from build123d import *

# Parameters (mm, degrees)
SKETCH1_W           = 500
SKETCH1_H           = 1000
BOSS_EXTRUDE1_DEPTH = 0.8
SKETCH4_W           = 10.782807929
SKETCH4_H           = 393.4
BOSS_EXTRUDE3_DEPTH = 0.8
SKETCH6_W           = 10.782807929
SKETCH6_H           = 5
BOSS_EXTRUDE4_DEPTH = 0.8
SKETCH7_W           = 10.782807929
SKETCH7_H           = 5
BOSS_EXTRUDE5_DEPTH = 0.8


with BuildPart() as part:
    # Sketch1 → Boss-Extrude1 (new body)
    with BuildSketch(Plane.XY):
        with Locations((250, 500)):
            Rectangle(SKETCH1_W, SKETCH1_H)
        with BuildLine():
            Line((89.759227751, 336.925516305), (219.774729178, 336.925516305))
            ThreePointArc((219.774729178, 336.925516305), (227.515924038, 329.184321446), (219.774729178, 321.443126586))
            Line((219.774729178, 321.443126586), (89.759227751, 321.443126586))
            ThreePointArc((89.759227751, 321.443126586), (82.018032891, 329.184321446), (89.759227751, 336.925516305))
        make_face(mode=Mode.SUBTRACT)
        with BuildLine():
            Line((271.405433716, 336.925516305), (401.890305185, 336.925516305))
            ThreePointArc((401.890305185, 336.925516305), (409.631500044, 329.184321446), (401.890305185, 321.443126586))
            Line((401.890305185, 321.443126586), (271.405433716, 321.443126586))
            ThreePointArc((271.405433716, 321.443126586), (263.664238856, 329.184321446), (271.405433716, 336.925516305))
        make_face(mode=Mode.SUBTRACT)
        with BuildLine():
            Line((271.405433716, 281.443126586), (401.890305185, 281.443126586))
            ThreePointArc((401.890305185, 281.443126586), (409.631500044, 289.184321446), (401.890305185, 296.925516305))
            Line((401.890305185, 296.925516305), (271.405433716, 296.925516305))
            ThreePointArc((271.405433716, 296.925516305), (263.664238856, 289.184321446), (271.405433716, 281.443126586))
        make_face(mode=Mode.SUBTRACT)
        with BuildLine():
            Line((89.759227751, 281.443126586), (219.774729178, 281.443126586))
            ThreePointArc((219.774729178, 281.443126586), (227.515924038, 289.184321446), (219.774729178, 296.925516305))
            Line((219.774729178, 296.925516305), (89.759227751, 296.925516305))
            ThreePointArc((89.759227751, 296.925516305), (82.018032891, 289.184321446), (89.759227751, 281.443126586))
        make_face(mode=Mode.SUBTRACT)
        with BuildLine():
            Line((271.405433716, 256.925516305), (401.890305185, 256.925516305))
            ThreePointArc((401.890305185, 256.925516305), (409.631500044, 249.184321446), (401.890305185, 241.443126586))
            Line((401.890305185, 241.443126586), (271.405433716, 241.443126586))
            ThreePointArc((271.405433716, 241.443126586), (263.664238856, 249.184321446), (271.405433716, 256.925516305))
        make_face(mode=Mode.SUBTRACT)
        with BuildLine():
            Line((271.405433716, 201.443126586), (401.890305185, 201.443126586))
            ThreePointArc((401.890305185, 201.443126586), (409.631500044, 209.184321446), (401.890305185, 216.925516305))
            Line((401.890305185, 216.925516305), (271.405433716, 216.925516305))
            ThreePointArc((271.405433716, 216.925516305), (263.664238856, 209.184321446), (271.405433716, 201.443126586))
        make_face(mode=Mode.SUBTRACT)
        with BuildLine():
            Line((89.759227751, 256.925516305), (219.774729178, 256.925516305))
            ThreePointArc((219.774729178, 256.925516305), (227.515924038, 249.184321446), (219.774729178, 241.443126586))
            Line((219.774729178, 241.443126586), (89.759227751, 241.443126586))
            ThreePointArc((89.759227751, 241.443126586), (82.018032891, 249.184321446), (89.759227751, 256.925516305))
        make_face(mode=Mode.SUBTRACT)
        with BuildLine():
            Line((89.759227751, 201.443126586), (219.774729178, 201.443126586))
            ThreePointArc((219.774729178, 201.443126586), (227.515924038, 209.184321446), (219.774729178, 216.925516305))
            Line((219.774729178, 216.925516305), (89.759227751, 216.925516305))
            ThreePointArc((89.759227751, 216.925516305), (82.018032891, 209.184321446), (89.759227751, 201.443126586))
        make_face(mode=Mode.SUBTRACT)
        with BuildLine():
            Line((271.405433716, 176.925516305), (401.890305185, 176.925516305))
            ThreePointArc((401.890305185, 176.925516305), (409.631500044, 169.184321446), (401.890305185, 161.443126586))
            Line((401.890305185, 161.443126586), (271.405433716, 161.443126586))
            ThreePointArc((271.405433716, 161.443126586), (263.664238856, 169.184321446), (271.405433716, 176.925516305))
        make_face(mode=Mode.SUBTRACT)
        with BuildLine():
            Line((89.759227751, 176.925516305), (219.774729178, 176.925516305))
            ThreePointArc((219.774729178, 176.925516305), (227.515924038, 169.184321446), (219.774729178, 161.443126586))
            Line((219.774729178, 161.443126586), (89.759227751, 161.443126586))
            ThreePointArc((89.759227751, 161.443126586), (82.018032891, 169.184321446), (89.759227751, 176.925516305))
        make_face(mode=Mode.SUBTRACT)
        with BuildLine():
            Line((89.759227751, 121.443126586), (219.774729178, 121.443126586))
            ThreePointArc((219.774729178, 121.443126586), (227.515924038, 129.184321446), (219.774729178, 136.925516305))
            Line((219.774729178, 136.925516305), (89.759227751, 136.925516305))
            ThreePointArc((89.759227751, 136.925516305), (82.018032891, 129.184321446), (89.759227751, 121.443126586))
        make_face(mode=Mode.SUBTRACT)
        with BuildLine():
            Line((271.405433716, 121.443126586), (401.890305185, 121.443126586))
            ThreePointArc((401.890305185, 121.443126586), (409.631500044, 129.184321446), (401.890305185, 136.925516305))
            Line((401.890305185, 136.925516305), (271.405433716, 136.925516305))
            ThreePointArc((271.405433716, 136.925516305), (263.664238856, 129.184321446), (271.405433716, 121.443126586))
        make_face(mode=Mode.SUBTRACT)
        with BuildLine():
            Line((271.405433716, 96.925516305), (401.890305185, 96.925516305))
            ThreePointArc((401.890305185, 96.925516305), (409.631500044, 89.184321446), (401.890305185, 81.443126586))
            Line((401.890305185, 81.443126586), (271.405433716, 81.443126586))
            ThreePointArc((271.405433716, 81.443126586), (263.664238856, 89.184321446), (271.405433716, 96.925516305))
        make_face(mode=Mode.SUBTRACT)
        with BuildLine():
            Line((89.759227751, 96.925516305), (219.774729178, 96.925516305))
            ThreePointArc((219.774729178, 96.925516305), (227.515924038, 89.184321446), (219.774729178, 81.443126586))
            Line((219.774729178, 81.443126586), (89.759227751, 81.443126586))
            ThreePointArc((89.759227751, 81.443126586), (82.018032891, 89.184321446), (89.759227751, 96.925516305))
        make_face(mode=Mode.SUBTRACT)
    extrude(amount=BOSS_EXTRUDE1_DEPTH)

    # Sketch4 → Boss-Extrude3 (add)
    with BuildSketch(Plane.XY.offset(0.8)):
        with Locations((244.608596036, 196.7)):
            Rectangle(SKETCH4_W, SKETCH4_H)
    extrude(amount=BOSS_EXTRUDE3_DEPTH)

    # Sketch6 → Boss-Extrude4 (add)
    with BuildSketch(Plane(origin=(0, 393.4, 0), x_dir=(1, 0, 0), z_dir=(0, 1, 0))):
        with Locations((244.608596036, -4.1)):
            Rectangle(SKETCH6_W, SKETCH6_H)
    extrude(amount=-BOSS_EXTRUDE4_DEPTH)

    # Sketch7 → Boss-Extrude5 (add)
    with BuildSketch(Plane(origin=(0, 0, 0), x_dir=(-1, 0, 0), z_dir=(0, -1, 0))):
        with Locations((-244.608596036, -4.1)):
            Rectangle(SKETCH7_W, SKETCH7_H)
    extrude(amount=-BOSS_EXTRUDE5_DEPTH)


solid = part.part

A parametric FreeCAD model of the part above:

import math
import FreeCAD as App
import Part
import Sketcher
from FreeCAD import Vector
Q = App.Units.Quantity


def add_polygon(sketch, points):
    """Adds a closed chain of lines whose ends are joined by coincident constraints."""
    first, n = sketch.GeometryCount, len(points)
    for a, b in zip(points, points[1:] + points[:1]):
        sketch.addGeometry(Part.LineSegment(App.Vector(*a, 0), App.Vector(*b, 0)), False)
    for i in range(n):
        sketch.addConstraint(Sketcher.Constraint("Coincident", first + i, 2, first + (i + 1) % n, 1))

doc = App.newDocument("Part")
body = doc.addObject("PartDesign::Body", "Body")

sketch1 = body.newObject("Sketcher::SketchObject", "Sketch")
sketch1.AttachmentSupport = (doc.getObject("XY_Plane"), [""])
sketch1.MapMode = "FlatFace"
add_polygon(sketch1, [(0, 1000), (0, 0), (500, 0), (500, 1000)])
sketch1.addGeometry(Part.ArcOfCircle(Part.Circle(Vector(90, 89, 0), Vector(0, 0, 1), 8), math.radians(90), math.radians(270)), False)
sketch1.addGeometry(Part.LineSegment(Vector(90, 97, 0), Vector(220, 97, 0)), False)
sketch1.addGeometry(Part.ArcOfCircle(Part.Circle(Vector(220, 89, 0), Vector(0, 0, 1), 8), math.radians(-90), math.radians(90)), False)
sketch1.addGeometry(Part.LineSegment(Vector(220, 81, 0), Vector(90, 81, 0)), False)
sketch1.addGeometry(Part.LineSegment(Vector(220, 121, 0), Vector(90, 121, 0)), False)
sketch1.addGeometry(Part.ArcOfCircle(Part.Circle(Vector(90, 129, 0), Vector(0, 0, 1), 8), math.radians(90), math.radians(270)), False)
sketch1.addGeometry(Part.LineSegment(Vector(90, 137, 0), Vector(220, 137, 0)), False)
sketch1.addGeometry(Part.ArcOfCircle(Part.Circle(Vector(220, 129, 0), Vector(0, 0, 1), 8), math.radians(-90), math.radians(90)), False)
sketch1.addGeometry(Part.ArcOfCircle(Part.Circle(Vector(90, 169, 0), Vector(0, 0, 1), 8), math.radians(90), math.radians(270)), False)
sketch1.addGeometry(Part.LineSegment(Vector(90, 177, 0), Vector(220, 177, 0)), False)
sketch1.addGeometry(Part.ArcOfCircle(Part.Circle(Vector(220, 169, 0), Vector(0, 0, 1), 8), math.radians(-90), math.radians(90)), False)
sketch1.addGeometry(Part.LineSegment(Vector(220, 161, 0), Vector(90, 161, 0)), False)
sketch1.addGeometry(Part.ArcOfCircle(Part.Circle(Vector(271, 89, 0), Vector(0, 0, 1), 8), math.radians(90), math.radians(270)), False)
sketch1.addGeometry(Part.LineSegment(Vector(271, 97, 0), Vector(402, 97, 0)), False)
sketch1.addGeometry(Part.ArcOfCircle(Part.Circle(Vector(402, 89, 0), Vector(0, 0, 1), 8), math.radians(-90), math.radians(90)), False)
sketch1.addGeometry(Part.LineSegment(Vector(402, 81, 0), Vector(271, 81, 0)), False)
sketch1.addGeometry(Part.LineSegment(Vector(402, 121, 0), Vector(271, 121, 0)), False)
sketch1.addGeometry(Part.ArcOfCircle(Part.Circle(Vector(271, 129, 0), Vector(0, 0, 1), 8), math.radians(90), math.radians(270)), False)
sketch1.addGeometry(Part.LineSegment(Vector(271, 137, 0), Vector(402, 137, 0)), False)
sketch1.addGeometry(Part.ArcOfCircle(Part.Circle(Vector(402, 129, 0), Vector(0, 0, 1), 8), math.radians(-90), math.radians(90)), False)
sketch1.addGeometry(Part.ArcOfCircle(Part.Circle(Vector(271, 169, 0), Vector(0, 0, 1), 8), math.radians(90), math.radians(270)), False)
sketch1.addGeometry(Part.LineSegment(Vector(271, 177, 0), Vector(402, 177, 0)), False)
sketch1.addGeometry(Part.ArcOfCircle(Part.Circle(Vector(402, 169, 0), Vector(0, 0, 1), 8), math.radians(-90), math.radians(90)), False)
sketch1.addGeometry(Part.LineSegment(Vector(402, 161, 0), Vector(271, 161, 0)), False)
sketch1.addGeometry(Part.LineSegment(Vector(220, 201, 0), Vector(90, 201, 0)), False)
sketch1.addGeometry(Part.ArcOfCircle(Part.Circle(Vector(90, 209, 0), Vector(0, 0, 1), 8), math.radians(90), math.radians(270)), False)
sketch1.addGeometry(Part.LineSegment(Vector(90, 217, 0), Vector(220, 217, 0)), False)
sketch1.addGeometry(Part.ArcOfCircle(Part.Circle(Vector(220, 209, 0), Vector(0, 0, 1), 8), math.radians(-90), math.radians(90)), False)
sketch1.addGeometry(Part.ArcOfCircle(Part.Circle(Vector(90, 249, 0), Vector(0, 0, 1), 8), math.radians(90), math.radians(270)), False)
sketch1.addGeometry(Part.LineSegment(Vector(90, 257, 0), Vector(220, 257, 0)), False)
sketch1.addGeometry(Part.ArcOfCircle(Part.Circle(Vector(220, 249, 0), Vector(0, 0, 1), 8), math.radians(-90), math.radians(90)), False)
sketch1.addGeometry(Part.LineSegment(Vector(220, 241, 0), Vector(90, 241, 0)), False)
sketch1.addGeometry(Part.LineSegment(Vector(220, 281, 0), Vector(90, 281, 0)), False)
sketch1.addGeometry(Part.ArcOfCircle(Part.Circle(Vector(90, 289, 0), Vector(0, 0, 1), 8), math.radians(90), math.radians(270)), False)
sketch1.addGeometry(Part.LineSegment(Vector(90, 297, 0), Vector(220, 297, 0)), False)
sketch1.addGeometry(Part.ArcOfCircle(Part.Circle(Vector(220, 289, 0), Vector(0, 0, 1), 8), math.radians(-90), math.radians(90)), False)
sketch1.addGeometry(Part.ArcOfCircle(Part.Circle(Vector(90, 329, 0), Vector(0, 0, 1), 8), math.radians(90), math.radians(270)), False)
sketch1.addGeometry(Part.LineSegment(Vector(90, 337, 0), Vector(220, 337, 0)), False)
sketch1.addGeometry(Part.ArcOfCircle(Part.Circle(Vector(220, 329, 0), Vector(0, 0, 1), 8), math.radians(-90), math.radians(90)), False)
sketch1.addGeometry(Part.LineSegment(Vector(220, 321, 0), Vector(90, 321, 0)), False)
sketch1.addGeometry(Part.LineSegment(Vector(402, 201, 0), Vector(271, 201, 0)), False)
sketch1.addGeometry(Part.ArcOfCircle(Part.Circle(Vector(271, 209, 0), Vector(0, 0, 1), 8), math.radians(90), math.radians(270)), False)
sketch1.addGeometry(Part.LineSegment(Vector(271, 217, 0), Vector(402, 217, 0)), False)
sketch1.addGeometry(Part.ArcOfCircle(Part.Circle(Vector(402, 209, 0), Vector(0, 0, 1), 8), math.radians(-90), math.radians(90)), False)
sketch1.addGeometry(Part.ArcOfCircle(Part.Circle(Vector(271, 249, 0), Vector(0, 0, 1), 8), math.radians(90), math.radians(270)), False)
sketch1.addGeometry(Part.LineSegment(Vector(271, 257, 0), Vector(402, 257, 0)), False)
sketch1.addGeometry(Part.ArcOfCircle(Part.Circle(Vector(402, 249, 0), Vector(0, 0, 1), 8), math.radians(-90), math.radians(90)), False)
sketch1.addGeometry(Part.LineSegment(Vector(402, 241, 0), Vector(271, 241, 0)), False)
sketch1.addGeometry(Part.LineSegment(Vector(402, 281, 0), Vector(271, 281, 0)), False)
sketch1.addGeometry(Part.ArcOfCircle(Part.Circle(Vector(271, 289, 0), Vector(0, 0, 1), 8), math.radians(90), math.radians(270)), False)
sketch1.addGeometry(Part.LineSegment(Vector(271, 297, 0), Vector(402, 297, 0)), False)
sketch1.addGeometry(Part.ArcOfCircle(Part.Circle(Vector(402, 289, 0), Vector(0, 0, 1), 8), math.radians(-90), math.radians(90)), False)
sketch1.addGeometry(Part.ArcOfCircle(Part.Circle(Vector(271, 329, 0), Vector(0, 0, 1), 8), math.radians(90), math.radians(270)), False)
sketch1.addGeometry(Part.LineSegment(Vector(271, 337, 0), Vector(402, 337, 0)), False)
sketch1.addGeometry(Part.ArcOfCircle(Part.Circle(Vector(402, 329, 0), Vector(0, 0, 1), 8), math.radians(-90), math.radians(90)), False)
sketch1.addGeometry(Part.LineSegment(Vector(402, 321, 0), Vector(271, 321, 0)), False)
sketch1.addConstraint(Sketcher.Constraint("Tangent", 4, 1, 5, 1))
sketch1.addConstraint(Sketcher.Constraint("Tangent", 5, 2, 6, 2))
sketch1.addConstraint(Sketcher.Constraint("Tangent", 6, 1, 7, 1))
sketch1.addConstraint(Sketcher.Constraint("Tangent", 7, 2, 4, 2))
sketch1.addConstraint(Sketcher.Constraint("Tangent", 8, 2, 9, 2))
sketch1.addConstraint(Sketcher.Constraint("Tangent", 9, 1, 10, 1))
sketch1.addConstraint(Sketcher.Constraint("Tangent", 10, 2, 11, 2))
sketch1.addConstraint(Sketcher.Constraint("Tangent", 11, 1, 8, 1))
sketch1.addConstraint(Sketcher.Constraint("Tangent", 12, 1, 13, 1))
sketch1.addConstraint(Sketcher.Constraint("Tangent", 13, 2, 14, 2))
sketch1.addConstraint(Sketcher.Constraint("Tangent", 14, 1, 15, 1))
sketch1.addConstraint(Sketcher.Constraint("Tangent", 15, 2, 12, 2))
sketch1.addConstraint(Sketcher.Constraint("Tangent", 16, 1, 17, 1))
sketch1.addConstraint(Sketcher.Constraint("Tangent", 17, 2, 18, 2))
sketch1.addConstraint(Sketcher.Constraint("Tangent", 18, 1, 19, 1))
sketch1.addConstraint(Sketcher.Constraint("Tangent", 19, 2, 16, 2))
sketch1.addConstraint(Sketcher.Constraint("Tangent", 20, 2, 21, 2))
sketch1.addConstraint(Sketcher.Constraint("Tangent", 21, 1, 22, 1))
sketch1.addConstraint(Sketcher.Constraint("Tangent", 22, 2, 23, 2))
sketch1.addConstraint(Sketcher.Constraint("Tangent", 23, 1, 20, 1))
sketch1.addConstraint(Sketcher.Constraint("Tangent", 24, 1, 25, 1))
sketch1.addConstraint(Sketcher.Constraint("Tangent", 25, 2, 26, 2))
sketch1.addConstraint(Sketcher.Constraint("Tangent", 26, 1, 27, 1))
sketch1.addConstraint(Sketcher.Constraint("Tangent", 27, 2, 24, 2))
sketch1.addConstraint(Sketcher.Constraint("Tangent", 28, 2, 29, 2))
sketch1.addConstraint(Sketcher.Constraint("Tangent", 29, 1, 30, 1))
sketch1.addConstraint(Sketcher.Constraint("Tangent", 30, 2, 31, 2))
sketch1.addConstraint(Sketcher.Constraint("Tangent", 31, 1, 28, 1))
sketch1.addConstraint(Sketcher.Constraint("Tangent", 32, 1, 33, 1))
sketch1.addConstraint(Sketcher.Constraint("Tangent", 33, 2, 34, 2))
sketch1.addConstraint(Sketcher.Constraint("Tangent", 34, 1, 35, 1))
sketch1.addConstraint(Sketcher.Constraint("Tangent", 35, 2, 32, 2))
sketch1.addConstraint(Sketcher.Constraint("Tangent", 36, 2, 37, 2))
sketch1.addConstraint(Sketcher.Constraint("Tangent", 37, 1, 38, 1))
sketch1.addConstraint(Sketcher.Constraint("Tangent", 38, 2, 39, 2))
sketch1.addConstraint(Sketcher.Constraint("Tangent", 39, 1, 36, 1))
sketch1.addConstraint(Sketcher.Constraint("Tangent", 40, 1, 41, 1))
sketch1.addConstraint(Sketcher.Constraint("Tangent", 41, 2, 42, 2))
sketch1.addConstraint(Sketcher.Constraint("Tangent", 42, 1, 43, 1))
sketch1.addConstraint(Sketcher.Constraint("Tangent", 43, 2, 40, 2))
sketch1.addConstraint(Sketcher.Constraint("Tangent", 44, 2, 45, 2))
sketch1.addConstraint(Sketcher.Constraint("Tangent", 45, 1, 46, 1))
sketch1.addConstraint(Sketcher.Constraint("Tangent", 46, 2, 47, 2))
sketch1.addConstraint(Sketcher.Constraint("Tangent", 47, 1, 44, 1))
sketch1.addConstraint(Sketcher.Constraint("Tangent", 48, 1, 49, 1))
sketch1.addConstraint(Sketcher.Constraint("Tangent", 49, 2, 50, 2))
sketch1.addConstraint(Sketcher.Constraint("Tangent", 50, 1, 51, 1))
sketch1.addConstraint(Sketcher.Constraint("Tangent", 51, 2, 48, 2))
sketch1.addConstraint(Sketcher.Constraint("Tangent", 52, 2, 53, 2))
sketch1.addConstraint(Sketcher.Constraint("Tangent", 53, 1, 54, 1))
sketch1.addConstraint(Sketcher.Constraint("Tangent", 54, 2, 55, 2))
sketch1.addConstraint(Sketcher.Constraint("Tangent", 55, 1, 52, 1))
sketch1.addConstraint(Sketcher.Constraint("Tangent", 56, 1, 57, 1))
sketch1.addConstraint(Sketcher.Constraint("Tangent", 57, 2, 58, 2))
sketch1.addConstraint(Sketcher.Constraint("Tangent", 58, 1, 59, 1))
sketch1.addConstraint(Sketcher.Constraint("Tangent", 59, 2, 56, 2))
sketch1.addConstraint(Sketcher.Constraint("Vertical", 0))
sketch1.addConstraint(Sketcher.Constraint("Horizontal", 1))
sketch1.addConstraint(Sketcher.Constraint("Vertical", 2))
sketch1.addConstraint(Sketcher.Constraint("Horizontal", 3))
sketch1.addConstraint(Sketcher.Constraint("Horizontal", 5))
sketch1.addConstraint(Sketcher.Constraint("Horizontal", 7))
sketch1.addConstraint(Sketcher.Constraint("Horizontal", 8))
sketch1.addConstraint(Sketcher.Constraint("Horizontal", 10))
sketch1.addConstraint(Sketcher.Constraint("Horizontal", 13))
sketch1.addConstraint(Sketcher.Constraint("Horizontal", 15))
sketch1.addConstraint(Sketcher.Constraint("Horizontal", 17))
sketch1.addConstraint(Sketcher.Constraint("Horizontal", 19))
sketch1.addConstraint(Sketcher.Constraint("Horizontal", 20))
sketch1.addConstraint(Sketcher.Constraint("Horizontal", 22))
sketch1.addConstraint(Sketcher.Constraint("Horizontal", 25))
sketch1.addConstraint(Sketcher.Constraint("Horizontal", 27))
sketch1.addConstraint(Sketcher.Constraint("Horizontal", 28))
sketch1.addConstraint(Sketcher.Constraint("Horizontal", 30))
sketch1.addConstraint(Sketcher.Constraint("Horizontal", 33))
sketch1.addConstraint(Sketcher.Constraint("Horizontal", 35))
sketch1.addConstraint(Sketcher.Constraint("Horizontal", 36))
sketch1.addConstraint(Sketcher.Constraint("Horizontal", 38))
sketch1.addConstraint(Sketcher.Constraint("Horizontal", 41))
sketch1.addConstraint(Sketcher.Constraint("Horizontal", 43))
sketch1.addConstraint(Sketcher.Constraint("Horizontal", 44))
sketch1.addConstraint(Sketcher.Constraint("Horizontal", 46))
sketch1.addConstraint(Sketcher.Constraint("Horizontal", 49))
sketch1.addConstraint(Sketcher.Constraint("Horizontal", 51))
sketch1.addConstraint(Sketcher.Constraint("Horizontal", 52))
sketch1.addConstraint(Sketcher.Constraint("Horizontal", 54))
sketch1.addConstraint(Sketcher.Constraint("Horizontal", 57))
sketch1.addConstraint(Sketcher.Constraint("Horizontal", 59))
sketch1.addConstraint(Sketcher.Constraint("Coincident", 0, 2, -1, 1))
sketch1.addConstraint(Sketcher.Constraint("Equal", 6, 9))
sketch1.addConstraint(Sketcher.Constraint("Equal", 11, 12))
sketch1.addConstraint(Sketcher.Constraint("Equal", 14, 16))
sketch1.addConstraint(Sketcher.Constraint("Equal", 18, 21))
sketch1.addConstraint(Sketcher.Constraint("Equal", 23, 24))
sketch1.addConstraint(Sketcher.Constraint("Equal", 26, 29))
sketch1.addConstraint(Sketcher.Constraint("Equal", 31, 32))
sketch1.addConstraint(Sketcher.Constraint("Equal", 34, 37))
sketch1.addConstraint(Sketcher.Constraint("Equal", 39, 40))
sketch1.addConstraint(Sketcher.Constraint("Equal", 42, 45))
sketch1.addConstraint(Sketcher.Constraint("Equal", 47, 48))
sketch1.addConstraint(Sketcher.Constraint("Equal", 50, 53))
sketch1.addConstraint(Sketcher.Constraint("Equal", 55, 56))
sketch1.addConstraint(Sketcher.Constraint("Horizontal", 6, 3, 16, 3))
sketch1.addConstraint(Sketcher.Constraint("Horizontal", 11, 3, 21, 3))
sketch1.addConstraint(Sketcher.Constraint("Horizontal", 14, 3, 24, 3))
sketch1.addConstraint(Sketcher.Constraint("Horizontal", 31, 3, 45, 3))
sketch1.addConstraint(Sketcher.Constraint("Horizontal", 34, 3, 48, 3))
sketch1.addConstraint(Sketcher.Constraint("Horizontal", 39, 3, 53, 3))
sketch1.addConstraint(Sketcher.Constraint("Horizontal", 42, 3, 56, 3))
sketch1.addConstraint(Sketcher.Constraint("Vertical", 4, 3, 9, 3))
sketch1.addConstraint(Sketcher.Constraint("Vertical", 6, 3, 11, 3))
sketch1.addConstraint(Sketcher.Constraint("Vertical", 9, 3, 12, 3))
sketch1.addConstraint(Sketcher.Constraint("Vertical", 11, 3, 14, 3))
sketch1.addConstraint(Sketcher.Constraint("Vertical", 16, 3, 21, 3))
sketch1.addConstraint(Sketcher.Constraint("Vertical", 18, 3, 23, 3))
sketch1.addConstraint(Sketcher.Constraint("Vertical", 21, 3, 24, 3))
sketch1.addConstraint(Sketcher.Constraint("Vertical", 23, 3, 26, 3))
sketch1.addConstraint(Sketcher.Constraint("Vertical", 12, 3, 29, 3))
sketch1.addConstraint(Sketcher.Constraint("Vertical", 14, 3, 31, 3))
sketch1.addConstraint(Sketcher.Constraint("Vertical", 29, 3, 32, 3))
sketch1.addConstraint(Sketcher.Constraint("Vertical", 31, 3, 34, 3))
sketch1.addConstraint(Sketcher.Constraint("Vertical", 32, 3, 37, 3))
sketch1.addConstraint(Sketcher.Constraint("Vertical", 34, 3, 39, 3))
sketch1.addConstraint(Sketcher.Constraint("Vertical", 37, 3, 40, 3))
sketch1.addConstraint(Sketcher.Constraint("Vertical", 39, 3, 42, 3))
sketch1.addConstraint(Sketcher.Constraint("Vertical", 24, 3, 45, 3))
sketch1.addConstraint(Sketcher.Constraint("Vertical", 26, 3, 47, 3))
sketch1.addConstraint(Sketcher.Constraint("Vertical", 45, 3, 48, 3))
sketch1.addConstraint(Sketcher.Constraint("Vertical", 47, 3, 50, 3))
sketch1.addConstraint(Sketcher.Constraint("Vertical", 48, 3, 53, 3))
sketch1.addConstraint(Sketcher.Constraint("Vertical", 50, 3, 55, 3))
sketch1.addConstraint(Sketcher.Constraint("Vertical", 53, 3, 56, 3))
sketch1.addConstraint(Sketcher.Constraint("Vertical", 55, 3, 58, 3))
sketch1.addConstraint(Sketcher.Constraint("DistanceX", 1, 1, 1, 2, Q("500 mm")))
sketch1.addConstraint(Sketcher.Constraint("DistanceY", 0, 2, 0, 1, Q("1000 mm")))
sketch1.addConstraint(Sketcher.Constraint("DistanceX", 5, 1, 5, 2, Q("130.015501 mm")))
sketch1.addConstraint(Sketcher.Constraint("Radius", 4, Q("7.741195 mm")))
sketch1.addConstraint(Sketcher.Constraint("DistanceX", 17, 1, 17, 2, Q("130.484871 mm")))
sketch1.addConstraint(Sketcher.Constraint("DistanceY", -1, 1, 4, 3, Q("89.184321 mm")))
sketch1.addConstraint(Sketcher.Constraint("DistanceX", -1, 1, 6, 3, Q("219.774729 mm")))
sketch1.addConstraint(Sketcher.Constraint("DistanceY", -1, 1, 9, 3, Q("129.184321 mm")))
sketch1.addConstraint(Sketcher.Constraint("DistanceY", -1, 1, 12, 3, Q("169.184321 mm")))
sketch1.addConstraint(Sketcher.Constraint("DistanceY", -1, 1, 29, 3, Q("209.184321 mm")))
sketch1.addConstraint(Sketcher.Constraint("DistanceY", -1, 1, 32, 3, Q("249.184321 mm")))
sketch1.addConstraint(Sketcher.Constraint("DistanceY", -1, 1, 37, 3, Q("289.184321 mm")))
sketch1.addConstraint(Sketcher.Constraint("DistanceY", -1, 1, 40, 3, Q("329.184321 mm")))
sketch1.addConstraint(Sketcher.Constraint("DistanceX", -1, 1, 16, 3, Q("271.405434 mm")))
pad1 = body.newObject("PartDesign::Pad", "Pad")
pad1.Profile = sketch1
pad1.Length = 0.8

sketch2 = body.newObject("Sketcher::SketchObject", "Sketch001")
sketch2.AttachmentSupport = (doc.getObject("XY_Plane"), [""])
sketch2.MapMode = "FlatFace"
sketch2.AttachmentOffset = App.Placement(Vector(0, 0, 0.8), App.Rotation())
add_polygon(sketch2, [(239, 393), (239, 0), (250, 0), (250, 393)])
sketch2.addConstraint(Sketcher.Constraint("Vertical", 0))
sketch2.addConstraint(Sketcher.Constraint("Horizontal", 1))
sketch2.addConstraint(Sketcher.Constraint("Vertical", 2))
sketch2.addConstraint(Sketcher.Constraint("Horizontal", 3))
sketch2.addConstraint(Sketcher.Constraint("PointOnObject", 0, 2, -1))
sketch2.addConstraint(Sketcher.Constraint("DistanceY", 0, 2, 0, 1, Q("393.4 mm")))
sketch2.addConstraint(Sketcher.Constraint("DistanceX", -1, 1, 1, 2, Q("250 mm")))
sketch2.addConstraint(Sketcher.Constraint("DistanceX", 1, 1, 1, 2, Q("10.782808 mm")))
pad2 = body.newObject("PartDesign::Pad", "Pad001")
pad2.Profile = sketch2
pad2.Length = 0.8

sketch3 = body.newObject("Sketcher::SketchObject", "Sketch002")
sketch3.AttachmentSupport = (doc.getObject("XZ_Plane"), [""])
sketch3.MapMode = "FlatFace"
sketch3.AttachmentOffset = App.Placement(Vector(0, 0, -393.4), App.Rotation())
add_polygon(sketch3, [(239, 2), (239, 7), (250, 7), (250, 2)])
sketch3.addConstraint(Sketcher.Constraint("Vertical", 0))
sketch3.addConstraint(Sketcher.Constraint("Horizontal", 1))
sketch3.addConstraint(Sketcher.Constraint("Vertical", 2))
sketch3.addConstraint(Sketcher.Constraint("Horizontal", 3))
sketch3.addConstraint(Sketcher.Constraint("DistanceY", 0, 1, 0, 2, Q("5 mm")))
sketch3.addConstraint(Sketcher.Constraint("DistanceX", -1, 1, 1, 2, Q("250 mm")))
sketch3.addConstraint(Sketcher.Constraint("DistanceY", -1, 1, 0, 2, Q("6.6 mm")))
sketch3.addConstraint(Sketcher.Constraint("DistanceX", 1, 1, 1, 2, Q("10.782808 mm")))
pad3 = body.newObject("PartDesign::Pad", "Pad002")
pad3.Profile = sketch3
pad3.Length = 0.8

sketch4 = body.newObject("Sketcher::SketchObject", "Sketch003")
sketch4.AttachmentSupport = (doc.getObject("XZ_Plane"), [""])
sketch4.MapMode = "FlatFace"
add_polygon(sketch4, [(250, 2), (250, 7), (239, 7), (239, 2)])
sketch4.addConstraint(Sketcher.Constraint("Vertical", 0))
sketch4.addConstraint(Sketcher.Constraint("Horizontal", 1))
sketch4.addConstraint(Sketcher.Constraint("Vertical", 2))
sketch4.addConstraint(Sketcher.Constraint("Horizontal", 3))
sketch4.addConstraint(Sketcher.Constraint("DistanceY", 0, 1, 0, 2, Q("5 mm")))
sketch4.addConstraint(Sketcher.Constraint("DistanceX", -1, 1, 0, 2, Q("250 mm")))
sketch4.addConstraint(Sketcher.Constraint("DistanceY", -1, 1, 0, 2, Q("6.6 mm")))
sketch4.addConstraint(Sketcher.Constraint("DistanceX", 1, 2, 1, 1, Q("10.782808 mm")))
pad4 = body.newObject("PartDesign::Pad", "Pad003")
pad4.Profile = sketch4
pad4.Length = 0.8
pad4.Reversed = True

doc.recompute()
